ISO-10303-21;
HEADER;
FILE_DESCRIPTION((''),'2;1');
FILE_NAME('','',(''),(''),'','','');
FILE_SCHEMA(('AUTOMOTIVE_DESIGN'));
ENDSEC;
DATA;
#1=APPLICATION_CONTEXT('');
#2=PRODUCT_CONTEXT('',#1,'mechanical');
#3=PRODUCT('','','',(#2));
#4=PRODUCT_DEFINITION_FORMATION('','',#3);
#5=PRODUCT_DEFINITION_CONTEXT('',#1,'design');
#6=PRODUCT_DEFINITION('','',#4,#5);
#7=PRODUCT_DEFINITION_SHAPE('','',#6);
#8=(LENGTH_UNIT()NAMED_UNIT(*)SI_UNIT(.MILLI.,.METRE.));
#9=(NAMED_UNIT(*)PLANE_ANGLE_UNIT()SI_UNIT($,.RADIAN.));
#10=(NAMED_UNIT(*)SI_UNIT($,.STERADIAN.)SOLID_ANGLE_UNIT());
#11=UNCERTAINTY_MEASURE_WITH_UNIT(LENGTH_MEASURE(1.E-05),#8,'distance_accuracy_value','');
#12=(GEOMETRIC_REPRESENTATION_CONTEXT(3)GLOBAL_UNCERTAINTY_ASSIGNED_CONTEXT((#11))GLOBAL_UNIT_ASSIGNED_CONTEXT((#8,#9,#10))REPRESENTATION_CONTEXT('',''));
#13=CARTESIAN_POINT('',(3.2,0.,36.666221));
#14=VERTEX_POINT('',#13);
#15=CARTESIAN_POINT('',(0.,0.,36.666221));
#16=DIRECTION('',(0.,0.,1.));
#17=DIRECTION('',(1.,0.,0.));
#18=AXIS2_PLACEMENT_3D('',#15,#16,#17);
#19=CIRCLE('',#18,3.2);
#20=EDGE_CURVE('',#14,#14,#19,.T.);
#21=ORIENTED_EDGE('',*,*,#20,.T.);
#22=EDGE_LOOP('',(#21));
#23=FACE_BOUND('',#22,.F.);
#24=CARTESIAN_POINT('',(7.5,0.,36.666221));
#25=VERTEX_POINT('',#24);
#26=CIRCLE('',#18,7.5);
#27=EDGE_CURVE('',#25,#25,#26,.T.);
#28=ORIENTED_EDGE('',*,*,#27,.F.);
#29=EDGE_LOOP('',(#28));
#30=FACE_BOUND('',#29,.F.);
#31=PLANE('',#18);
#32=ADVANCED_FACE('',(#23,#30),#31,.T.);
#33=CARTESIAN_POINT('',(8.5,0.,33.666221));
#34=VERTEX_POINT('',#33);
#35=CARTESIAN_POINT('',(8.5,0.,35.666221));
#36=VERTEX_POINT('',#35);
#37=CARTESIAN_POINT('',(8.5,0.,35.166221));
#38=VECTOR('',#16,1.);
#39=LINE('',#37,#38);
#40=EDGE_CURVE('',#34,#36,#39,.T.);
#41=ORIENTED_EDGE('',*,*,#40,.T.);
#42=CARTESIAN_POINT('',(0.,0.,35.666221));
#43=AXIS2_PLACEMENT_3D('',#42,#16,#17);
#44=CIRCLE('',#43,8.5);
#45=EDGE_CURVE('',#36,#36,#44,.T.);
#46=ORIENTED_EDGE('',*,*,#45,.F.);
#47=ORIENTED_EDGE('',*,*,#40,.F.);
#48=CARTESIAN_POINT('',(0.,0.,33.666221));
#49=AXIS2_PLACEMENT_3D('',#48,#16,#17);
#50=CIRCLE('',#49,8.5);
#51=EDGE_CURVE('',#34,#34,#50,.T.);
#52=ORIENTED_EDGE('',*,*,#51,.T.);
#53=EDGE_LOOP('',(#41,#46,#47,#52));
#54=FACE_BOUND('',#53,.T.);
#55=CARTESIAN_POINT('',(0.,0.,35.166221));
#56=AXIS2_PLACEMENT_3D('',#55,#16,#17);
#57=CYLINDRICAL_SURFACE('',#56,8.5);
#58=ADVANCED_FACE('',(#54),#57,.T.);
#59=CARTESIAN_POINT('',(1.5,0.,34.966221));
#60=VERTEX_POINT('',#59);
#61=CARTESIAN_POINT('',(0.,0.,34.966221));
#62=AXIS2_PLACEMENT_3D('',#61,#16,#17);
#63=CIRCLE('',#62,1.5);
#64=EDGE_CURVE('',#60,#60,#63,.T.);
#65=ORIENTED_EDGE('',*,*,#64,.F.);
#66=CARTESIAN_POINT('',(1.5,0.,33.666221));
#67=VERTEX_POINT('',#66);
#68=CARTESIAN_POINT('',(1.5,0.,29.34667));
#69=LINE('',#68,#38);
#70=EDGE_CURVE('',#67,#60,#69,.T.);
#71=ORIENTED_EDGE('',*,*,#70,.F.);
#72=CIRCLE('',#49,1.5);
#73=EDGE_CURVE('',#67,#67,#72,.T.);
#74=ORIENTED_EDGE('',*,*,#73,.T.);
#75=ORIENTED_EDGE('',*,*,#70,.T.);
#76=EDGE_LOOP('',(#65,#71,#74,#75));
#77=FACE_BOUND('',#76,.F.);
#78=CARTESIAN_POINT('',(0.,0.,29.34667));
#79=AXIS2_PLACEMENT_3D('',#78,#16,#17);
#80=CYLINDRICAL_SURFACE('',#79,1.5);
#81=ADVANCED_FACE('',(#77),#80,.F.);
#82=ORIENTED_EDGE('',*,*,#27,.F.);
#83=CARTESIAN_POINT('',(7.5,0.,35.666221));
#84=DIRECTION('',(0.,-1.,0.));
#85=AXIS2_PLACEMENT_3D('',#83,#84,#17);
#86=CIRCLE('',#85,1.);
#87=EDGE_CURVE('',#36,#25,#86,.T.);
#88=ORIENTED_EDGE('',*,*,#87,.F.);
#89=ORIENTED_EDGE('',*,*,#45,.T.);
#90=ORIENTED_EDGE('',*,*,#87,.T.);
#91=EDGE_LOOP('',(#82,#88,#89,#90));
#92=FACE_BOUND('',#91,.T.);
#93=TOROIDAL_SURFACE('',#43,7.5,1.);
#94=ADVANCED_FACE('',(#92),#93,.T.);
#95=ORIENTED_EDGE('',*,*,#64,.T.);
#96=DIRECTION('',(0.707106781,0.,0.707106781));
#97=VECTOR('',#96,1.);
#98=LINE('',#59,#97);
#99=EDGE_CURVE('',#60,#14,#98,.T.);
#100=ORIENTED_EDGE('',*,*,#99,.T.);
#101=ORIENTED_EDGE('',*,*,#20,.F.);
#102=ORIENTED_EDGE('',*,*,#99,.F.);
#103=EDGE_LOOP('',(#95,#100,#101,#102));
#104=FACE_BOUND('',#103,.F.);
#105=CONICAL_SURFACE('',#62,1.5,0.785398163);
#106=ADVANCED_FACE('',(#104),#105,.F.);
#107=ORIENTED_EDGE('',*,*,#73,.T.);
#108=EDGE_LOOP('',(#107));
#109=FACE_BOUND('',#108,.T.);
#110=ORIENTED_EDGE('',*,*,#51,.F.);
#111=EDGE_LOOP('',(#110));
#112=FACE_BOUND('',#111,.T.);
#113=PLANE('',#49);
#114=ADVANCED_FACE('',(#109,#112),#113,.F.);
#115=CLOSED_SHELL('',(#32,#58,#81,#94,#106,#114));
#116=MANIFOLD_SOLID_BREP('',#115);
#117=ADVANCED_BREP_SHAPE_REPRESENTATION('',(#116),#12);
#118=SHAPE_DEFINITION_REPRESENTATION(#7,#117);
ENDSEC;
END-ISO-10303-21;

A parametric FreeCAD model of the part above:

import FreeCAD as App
import Part
import Sketcher
Q = App.Units.Quantity


def edges_at(feature, points):
    """Names of the edges that pass closest to the given points."""
    edges = feature.Shape.Edges
    near = lambda p: min(range(len(edges)), key=lambda i: edges[i].distToShape(Part.Vertex(*p))[0])
    return sorted({f"Edge{near(p) + 1}" for p in points})


def add_polygon(sketch, points):
    """Adds a closed chain of lines whose ends are joined by coincident constraints."""
    first, n = sketch.GeometryCount, len(points)
    for a, b in zip(points, points[1:] + points[:1]):
        sketch.addGeometry(Part.LineSegment(App.Vector(*a, 0), App.Vector(*b, 0)), False)
    for i in range(n):
        sketch.addConstraint(Sketcher.Constraint("Coincident", first + i, 2, first + (i + 1) % n, 1))

doc = App.newDocument("Part")
body = doc.addObject("PartDesign::Body", "Body")

# Sketch on XZ plane
sketch1 = body.newObject("Sketcher::SketchObject", "Sketch")
sketch1.AttachmentSupport = (doc.getObject("XZ_Plane"), [""])
sketch1.MapMode = "FlatFace"
add_polygon(sketch1, [(0, 36.666221), (0, 33.666221), (8.5, 33.666221), (8.5, 36.666221)])  # lines 0-3
sketch1.addConstraint([
    Sketcher.Constraint("Vertical", 0),
    Sketcher.Constraint("Horizontal", 1),
    Sketcher.Constraint("Vertical", 2),
    Sketcher.Constraint("Horizontal", 3),
    Sketcher.Constraint("PointOnObject", 0, 2, -2),
    Sketcher.Constraint("DistanceY", 0, 2, 0, 1, 3.0),
    Sketcher.Constraint("DistanceX", 1, 1, 1, 2, 8.5),
    Sketcher.Constraint("DistanceY", -1, 1, 0, 2, 33.666221),
])
revolution = body.newObject("PartDesign::Revolution", "Revolution")
revolution.Profile = sketch1
revolution.ReferenceAxis = (sketch1, ["V_Axis"])
revolution.Angle = 360
doc.recompute()

fillet = body.newObject("PartDesign::Fillet", "Fillet")
fillet.Base = (revolution, edges_at(revolution, [(-8.5, 0, 36.666)]))
fillet.Radius = 1

# Sketch on XZ plane
sketch2 = body.newObject("Sketcher::SketchObject", "Sketch001")
sketch2.AttachmentSupport = (doc.getObject("XZ_Plane"), [""])
sketch2.MapMode = "FlatFace"
add_polygon(sketch2, [(0, 36.666221), (0, 29.34667), (1.5, 29.34667), (1.5, 34.966221), (3.2, 36.666221)])  # lines 0-4
sketch2.addConstraint([
    Sketcher.Constraint("Vertical", 0),
    Sketcher.Constraint("Horizontal", 1),
    Sketcher.Constraint("Vertical", 2),
    Sketcher.Constraint("Horizontal", 4),
    Sketcher.Constraint("PointOnObject", 0, 2, -2),
    Sketcher.Constraint("Angle", 3, Q("45 deg")),
    Sketcher.Constraint("DistanceX", 1, 1, 1, 2, 1.5),
    Sketcher.Constraint("DistanceX", 4, 2, 4, 1, 3.2),
    Sketcher.Constraint("DistanceY", 0, 2, 0, 1, 7.319551),
    Sketcher.Constraint("DistanceY", -1, 1, 0, 2, 29.34667),
])
groove = body.newObject("PartDesign::Groove", "Groove")
groove.Profile = sketch2
groove.ReferenceAxis = (sketch2, ["V_Axis"])
groove.Angle = 360

doc.recompute()
